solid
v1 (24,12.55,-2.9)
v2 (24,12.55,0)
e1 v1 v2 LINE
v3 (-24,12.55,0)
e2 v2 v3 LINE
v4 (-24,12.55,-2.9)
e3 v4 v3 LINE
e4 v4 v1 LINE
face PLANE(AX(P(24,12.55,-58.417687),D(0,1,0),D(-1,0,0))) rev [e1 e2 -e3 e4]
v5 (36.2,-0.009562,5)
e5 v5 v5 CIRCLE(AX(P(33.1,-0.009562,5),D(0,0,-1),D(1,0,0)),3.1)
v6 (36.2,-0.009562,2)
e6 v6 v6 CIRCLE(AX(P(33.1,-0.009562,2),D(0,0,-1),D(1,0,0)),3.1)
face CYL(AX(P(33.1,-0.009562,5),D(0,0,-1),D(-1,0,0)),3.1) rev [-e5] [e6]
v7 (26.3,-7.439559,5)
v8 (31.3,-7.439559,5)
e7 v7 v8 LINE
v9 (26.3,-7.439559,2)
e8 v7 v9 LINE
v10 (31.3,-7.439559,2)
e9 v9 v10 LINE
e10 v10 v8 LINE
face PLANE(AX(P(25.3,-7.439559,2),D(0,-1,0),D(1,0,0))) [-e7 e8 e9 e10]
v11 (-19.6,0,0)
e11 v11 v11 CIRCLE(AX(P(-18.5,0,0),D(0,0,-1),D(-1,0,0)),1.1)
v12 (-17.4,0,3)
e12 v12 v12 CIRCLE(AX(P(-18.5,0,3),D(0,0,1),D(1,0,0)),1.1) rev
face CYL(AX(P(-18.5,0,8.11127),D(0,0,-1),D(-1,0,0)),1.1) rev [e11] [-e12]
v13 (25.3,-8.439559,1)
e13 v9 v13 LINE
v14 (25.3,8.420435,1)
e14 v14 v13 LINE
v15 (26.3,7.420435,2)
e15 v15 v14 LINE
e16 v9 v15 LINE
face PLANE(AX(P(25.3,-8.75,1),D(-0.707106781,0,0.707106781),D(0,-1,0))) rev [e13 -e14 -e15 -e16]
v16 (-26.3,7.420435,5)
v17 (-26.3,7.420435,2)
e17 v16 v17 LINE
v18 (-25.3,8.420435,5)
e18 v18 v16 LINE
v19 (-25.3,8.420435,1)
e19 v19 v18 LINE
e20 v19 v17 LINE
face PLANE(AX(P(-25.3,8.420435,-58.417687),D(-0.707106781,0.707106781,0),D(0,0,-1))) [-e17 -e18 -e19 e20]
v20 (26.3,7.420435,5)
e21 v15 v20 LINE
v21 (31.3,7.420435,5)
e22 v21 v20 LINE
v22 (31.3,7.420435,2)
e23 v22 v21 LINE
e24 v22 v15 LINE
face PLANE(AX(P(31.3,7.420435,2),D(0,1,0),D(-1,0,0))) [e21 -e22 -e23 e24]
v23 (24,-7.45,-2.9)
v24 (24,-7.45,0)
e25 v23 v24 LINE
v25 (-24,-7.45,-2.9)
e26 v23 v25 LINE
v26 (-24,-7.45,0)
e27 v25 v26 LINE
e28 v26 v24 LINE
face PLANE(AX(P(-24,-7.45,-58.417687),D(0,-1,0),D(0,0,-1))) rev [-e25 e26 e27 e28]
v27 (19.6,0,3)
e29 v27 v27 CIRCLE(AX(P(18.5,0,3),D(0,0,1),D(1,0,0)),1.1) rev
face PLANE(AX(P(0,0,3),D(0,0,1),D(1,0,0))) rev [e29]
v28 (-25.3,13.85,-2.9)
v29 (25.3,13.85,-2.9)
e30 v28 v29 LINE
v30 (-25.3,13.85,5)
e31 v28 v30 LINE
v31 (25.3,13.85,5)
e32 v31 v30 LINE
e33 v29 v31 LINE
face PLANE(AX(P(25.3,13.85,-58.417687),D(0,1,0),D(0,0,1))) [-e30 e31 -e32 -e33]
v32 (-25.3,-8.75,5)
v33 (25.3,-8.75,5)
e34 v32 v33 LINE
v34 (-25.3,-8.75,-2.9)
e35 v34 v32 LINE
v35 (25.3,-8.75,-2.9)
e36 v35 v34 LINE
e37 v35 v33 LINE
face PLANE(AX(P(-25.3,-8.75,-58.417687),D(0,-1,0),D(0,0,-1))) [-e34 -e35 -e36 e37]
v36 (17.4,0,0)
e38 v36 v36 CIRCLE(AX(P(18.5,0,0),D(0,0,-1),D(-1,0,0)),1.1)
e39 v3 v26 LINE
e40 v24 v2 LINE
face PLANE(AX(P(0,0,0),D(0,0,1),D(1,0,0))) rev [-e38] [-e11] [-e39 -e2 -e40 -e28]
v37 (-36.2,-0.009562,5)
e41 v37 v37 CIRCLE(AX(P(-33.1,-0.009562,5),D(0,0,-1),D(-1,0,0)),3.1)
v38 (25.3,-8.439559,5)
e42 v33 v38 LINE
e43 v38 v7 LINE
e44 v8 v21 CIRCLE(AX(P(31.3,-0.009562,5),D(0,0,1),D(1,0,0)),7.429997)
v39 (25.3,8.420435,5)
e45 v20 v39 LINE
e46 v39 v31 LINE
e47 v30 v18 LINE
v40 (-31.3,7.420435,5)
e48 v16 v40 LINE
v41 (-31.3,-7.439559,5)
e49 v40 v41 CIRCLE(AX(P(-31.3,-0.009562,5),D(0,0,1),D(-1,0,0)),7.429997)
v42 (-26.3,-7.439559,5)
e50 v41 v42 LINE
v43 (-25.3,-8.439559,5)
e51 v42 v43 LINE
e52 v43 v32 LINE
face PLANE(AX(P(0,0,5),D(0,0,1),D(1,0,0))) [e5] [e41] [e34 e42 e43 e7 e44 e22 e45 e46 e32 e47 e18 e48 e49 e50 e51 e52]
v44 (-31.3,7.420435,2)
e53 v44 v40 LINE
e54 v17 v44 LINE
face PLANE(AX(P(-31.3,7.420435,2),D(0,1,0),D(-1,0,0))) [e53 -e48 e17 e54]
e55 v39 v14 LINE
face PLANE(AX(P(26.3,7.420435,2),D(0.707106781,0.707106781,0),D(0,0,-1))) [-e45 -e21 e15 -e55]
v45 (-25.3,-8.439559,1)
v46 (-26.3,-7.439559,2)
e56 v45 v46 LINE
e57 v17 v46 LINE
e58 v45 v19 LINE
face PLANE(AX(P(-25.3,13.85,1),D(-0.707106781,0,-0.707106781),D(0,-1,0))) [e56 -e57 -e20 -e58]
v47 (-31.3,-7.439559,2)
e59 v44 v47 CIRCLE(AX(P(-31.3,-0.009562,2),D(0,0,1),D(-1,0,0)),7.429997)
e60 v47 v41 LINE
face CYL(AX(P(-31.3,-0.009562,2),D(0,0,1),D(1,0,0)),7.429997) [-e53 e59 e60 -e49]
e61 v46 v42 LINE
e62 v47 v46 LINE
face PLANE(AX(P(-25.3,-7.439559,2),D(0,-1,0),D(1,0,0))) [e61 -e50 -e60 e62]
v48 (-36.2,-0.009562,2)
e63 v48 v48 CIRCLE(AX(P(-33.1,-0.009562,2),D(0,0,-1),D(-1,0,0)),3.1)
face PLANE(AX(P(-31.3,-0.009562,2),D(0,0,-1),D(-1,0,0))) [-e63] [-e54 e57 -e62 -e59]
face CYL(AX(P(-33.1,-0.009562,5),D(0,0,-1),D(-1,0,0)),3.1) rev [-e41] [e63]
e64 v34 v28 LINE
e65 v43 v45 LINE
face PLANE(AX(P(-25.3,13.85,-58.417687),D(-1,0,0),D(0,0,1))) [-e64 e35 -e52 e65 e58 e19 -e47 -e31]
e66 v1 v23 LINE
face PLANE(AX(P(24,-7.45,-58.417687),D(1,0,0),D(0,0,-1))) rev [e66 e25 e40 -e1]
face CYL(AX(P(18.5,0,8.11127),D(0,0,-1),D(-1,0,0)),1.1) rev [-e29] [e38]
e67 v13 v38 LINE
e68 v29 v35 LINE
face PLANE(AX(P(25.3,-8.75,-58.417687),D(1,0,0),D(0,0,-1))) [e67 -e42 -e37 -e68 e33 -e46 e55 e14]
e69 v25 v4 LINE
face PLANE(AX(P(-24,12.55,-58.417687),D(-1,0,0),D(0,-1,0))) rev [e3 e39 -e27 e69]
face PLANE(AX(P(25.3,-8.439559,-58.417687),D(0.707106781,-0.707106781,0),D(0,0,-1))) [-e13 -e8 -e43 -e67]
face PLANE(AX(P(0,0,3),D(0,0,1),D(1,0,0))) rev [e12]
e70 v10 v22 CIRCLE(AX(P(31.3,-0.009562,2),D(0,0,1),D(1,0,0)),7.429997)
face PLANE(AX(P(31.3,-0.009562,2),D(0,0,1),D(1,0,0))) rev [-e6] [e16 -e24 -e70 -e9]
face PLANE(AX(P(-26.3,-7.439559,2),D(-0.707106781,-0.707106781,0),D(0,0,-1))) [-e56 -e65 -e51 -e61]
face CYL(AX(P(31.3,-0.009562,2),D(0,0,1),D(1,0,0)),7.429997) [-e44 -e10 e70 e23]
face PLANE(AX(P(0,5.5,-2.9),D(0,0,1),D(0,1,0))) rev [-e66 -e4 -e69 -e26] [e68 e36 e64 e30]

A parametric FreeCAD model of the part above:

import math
import FreeCAD as App
import Part
import Sketcher

V = App.Vector
Q = App.Units.Quantity


def edges_at(feature, points):
    """Names of the edges that pass closest to the given points."""
    edges = feature.Shape.Edges
    near = lambda p: min(range(len(edges)), key=lambda i: edges[i].distToShape(Part.Vertex(*p))[0])
    return sorted({f"Edge{near(p) + 1}" for p in points})

doc = App.newDocument("Part")
body = doc.addObject("PartDesign::Body", "Body")

sketch1 = doc.addObject("Sketcher::SketchObject", "Sketch")
body.addObject(sketch1)
sketch1.AttachmentSupport = (doc.XY_Plane, [""])
sketch1.MapMode = "FlatFace"
sketch1.addGeometry(Part.LineSegment(V(24, 12.55, 0), V(-24, 12.55, 0)), False)
sketch1.addGeometry(Part.LineSegment(V(-24, 12.55, 0), V(-24, -7.45, 0)), False)
sketch1.addGeometry(Part.LineSegment(V(-24, -7.45, 0), V(24, -7.45, 0)), False)
sketch1.addGeometry(Part.LineSegment(V(24, -7.45, 0), V(24, 12.55, 0)), False)
sketch1.addConstraint(Sketcher.Constraint("Coincident", 0, 2, 1, 1))
sketch1.addConstraint(Sketcher.Constraint("Coincident", 1, 2, 2, 1))
sketch1.addConstraint(Sketcher.Constraint("Coincident", 2, 2, 3, 1))
sketch1.addConstraint(Sketcher.Constraint("Coincident", 3, 2, 0, 1))
sketch1.addConstraint(Sketcher.Constraint("Horizontal", 0))
sketch1.addConstraint(Sketcher.Constraint("Vertical", 1))
sketch1.addConstraint(Sketcher.Constraint("Horizontal", 2))
sketch1.addConstraint(Sketcher.Constraint("Vertical", 3))
sketch1.addConstraint(Sketcher.Constraint("DistanceX", 0, 2, 0, 1, Q("48 mm")))
sketch1.addConstraint(Sketcher.Constraint("DistanceY", 1, 2, 1, 1, Q("20 mm")))
sketch1.addConstraint(Sketcher.Constraint("DistanceX", 0, 2, -1, 1, Q("24 mm")))
sketch1.addConstraint(Sketcher.Constraint("DistanceY", -1, 1, 0, 2, Q("12.55 mm")))
pad1 = doc.addObject("PartDesign::Pad", "Pad")
body.addObject(pad1)
pad1.Profile = sketch1
pad1.Length = 5

sketch2 = doc.addObject("Sketcher::SketchObject", "Sketch001")
body.addObject(sketch2)
sketch2.AttachmentSupport = (doc.XY_Plane, [""])
sketch2.MapMode = "FlatFace"
sketch2.AttachmentOffset = App.Placement(V(0, 0, 5), App.Rotation())
sketch2.addGeometry(Part.LineSegment(V(-25.3, 13.85, 0), V(-25.3, -8.75, 0)), False)
sketch2.addGeometry(Part.LineSegment(V(-25.3, -8.75, 0), V(25.3, -8.75, 0)), False)
sketch2.addGeometry(Part.LineSegment(V(25.3, -8.75, 0), V(25.3, 13.85, 0)), False)
sketch2.addGeometry(Part.LineSegment(V(25.3, 13.85, 0), V(-25.3, 13.85, 0)), False)
sketch2.addGeometry(Part.LineSegment(V(24, -7.45, 0), V(-24, -7.45, 0)), False)
sketch2.addGeometry(Part.LineSegment(V(-24, -7.45, 0), V(-24, 12.55, 0)), False)
sketch2.addGeometry(Part.LineSegment(V(-24, 12.55, 0), V(24, 12.55, 0)), False)
sketch2.addGeometry(Part.LineSegment(V(24, 12.55, 0), V(24, -7.45, 0)), False)
sketch2.addConstraint(Sketcher.Constraint("Coincident", 0, 2, 1, 1))
sketch2.addConstraint(Sketcher.Constraint("Coincident", 1, 2, 2, 1))
sketch2.addConstraint(Sketcher.Constraint("Coincident", 2, 2, 3, 1))
sketch2.addConstraint(Sketcher.Constraint("Coincident", 3, 2, 0, 1))
sketch2.addConstraint(Sketcher.Constraint("Coincident", 4, 2, 5, 1))
sketch2.addConstraint(Sketcher.Constraint("Coincident", 5, 2, 6, 1))
sketch2.addConstraint(Sketcher.Constraint("Coincident", 6, 2, 7, 1))
sketch2.addConstraint(Sketcher.Constraint("Coincident", 7, 2, 4, 1))
sketch2.addConstraint(Sketcher.Constraint("Vertical", 0))
sketch2.addConstraint(Sketcher.Constraint("Horizontal", 1))
sketch2.addConstraint(Sketcher.Constraint("Vertical", 2))
sketch2.addConstraint(Sketcher.Constraint("Horizontal", 3))
sketch2.addConstraint(Sketcher.Constraint("Horizontal", 4))
sketch2.addConstraint(Sketcher.Constraint("Vertical", 5))
sketch2.addConstraint(Sketcher.Constraint("Horizontal", 6))
sketch2.addConstraint(Sketcher.Constraint("Vertical", 7))
sketch2.addConstraint(Sketcher.Constraint("DistanceX", 4, 2, 4, 1, Q("48 mm")))
sketch2.addConstraint(Sketcher.Constraint("DistanceY", 5, 1, 5, 2, Q("20 mm")))
sketch2.addConstraint(Sketcher.Constraint("DistanceX", 1, 1, 1, 2, Q("50.6 mm")))
sketch2.addConstraint(Sketcher.Constraint("DistanceY", 0, 2, 0, 1, Q("22.6 mm")))
sketch2.addConstraint(Sketcher.Constraint("DistanceX", 4, 2, -1, 1, Q("24 mm")))
sketch2.addConstraint(Sketcher.Constraint("DistanceX", 0, 2, -1, 1, Q("25.3 mm")))
sketch2.addConstraint(Sketcher.Constraint("DistanceY", 0, 2, 4, 2, Q("1.3 mm")))
sketch2.addConstraint(Sketcher.Constraint("DistanceY", 0, 2, -1, 1, Q("8.75 mm")))
pad2 = doc.addObject("PartDesign::Pad", "Pad001")
body.addObject(pad2)
pad2.Profile = sketch2
pad2.Length = 7.9
pad2.Reversed = True

sketch3 = doc.addObject("Sketcher::SketchObject", "Sketch002")
body.addObject(sketch3)
sketch3.AttachmentSupport = (doc.XY_Plane, [""])
sketch3.MapMode = "FlatFace"
sketch3.addGeometry(Part.Circle(V(18.5, 0, 0), V(0, 0, 1), 1.1), False)
sketch3.addGeometry(Part.Circle(V(-18.5, 0, 0), V(0, 0, 1), 1.1), False)
sketch3.addConstraint(Sketcher.Constraint("Equal", 0, 1))
sketch3.addConstraint(Sketcher.Constraint("Symmetric", 0, 3, 1, 3, -1, 1))
sketch3.addConstraint(Sketcher.Constraint("PointOnObject", 0, 3, -1))
sketch3.addConstraint(Sketcher.Constraint("Diameter", 0, Q("2.2 mm")))
sketch3.addConstraint(Sketcher.Constraint("DistanceX", 1, 3, 0, 3, Q("37 mm")))
pocket1 = doc.addObject("PartDesign::Pocket", "Pocket")
body.addObject(pocket1)
pocket1.Profile = sketch3
pocket1.Length = 3
pocket1.Reversed = True

sketch4 = doc.addObject("Sketcher::SketchObject", "Sketch003")
body.addObject(sketch4)
sketch4.AttachmentSupport = (doc.XY_Plane, [""])
sketch4.MapMode = "FlatFace"
sketch4.AttachmentOffset = App.Placement(V(0, 0, 5), App.Rotation())
sketch4.addGeometry(Part.LineSegment(V(25.3, -7.439559, 0), V(31.3, -7.439559, 0)), False)
sketch4.addGeometry(Part.ArcOfCircle(Part.Circle(V(31.3, -0.009562, 0), V(0, 0, 1), 7.429997), math.radians(-90), math.radians(90)), False)
sketch4.addGeometry(Part.LineSegment(V(31.3, 7.420435, 0), V(25.3, 7.420435, 0)), False)
sketch4.addGeometry(Part.LineSegment(V(25.3, 7.420435, 0), V(25.3, -7.439559, 0)), False)
sketch4.addGeometry(Part.LineSegment(V(-31.3, -7.439559, 0), V(-25.3, -7.439559, 0)), False)
sketch4.addGeometry(Part.LineSegment(V(-25.3, -7.439559, 0), V(-25.3, 7.420435, 0)), False)
sketch4.addGeometry(Part.LineSegment(V(-25.3, 7.420435, 0), V(-31.3, 7.420435, 0)), False)
sketch4.addGeometry(Part.ArcOfCircle(Part.Circle(V(-31.3, -0.009562, 0), V(0, 0, 1), 7.429997), math.radians(90), math.radians(270)), False)
sketch4.addConstraint(Sketcher.Constraint("Tangent", 0, 2, 1, 1))
sketch4.addConstraint(Sketcher.Constraint("Tangent", 1, 2, 2, 1))
sketch4.addConstraint(Sketcher.Constraint("Coincident", 2, 2, 3, 1))
sketch4.addConstraint(Sketcher.Constraint("Coincident", 3, 2, 0, 1))
sketch4.addConstraint(Sketcher.Constraint("Coincident", 4, 2, 5, 1))
sketch4.addConstraint(Sketcher.Constraint("Coincident", 5, 2, 6, 1))
sketch4.addConstraint(Sketcher.Constraint("Tangent", 6, 2, 7, 1))
sketch4.addConstraint(Sketcher.Constraint("Tangent", 7, 2, 4, 1))
sketch4.addConstraint(Sketcher.Constraint("Horizontal", 0))
sketch4.addConstraint(Sketcher.Constraint("Horizontal", 2))
sketch4.addConstraint(Sketcher.Constraint("Vertical", 3))
sketch4.addConstraint(Sketcher.Constraint("Horizontal", 4))
sketch4.addConstraint(Sketcher.Constraint("Vertical", 5))
sketch4.addConstraint(Sketcher.Constraint("Horizontal", 6))
sketch4.addConstraint(Sketcher.Constraint("Equal", 1, 7))
sketch4.addConstraint(Sketcher.Constraint("Symmetric", 1, 3, 7, 3, -2))
sketch4.addConstraint(Sketcher.Constraint("Equal", 2, 4))
sketch4.addConstraint(Sketcher.Constraint("DistanceX", 0, 1, 0, 2, Q("6 mm")))
sketch4.addConstraint(Sketcher.Constraint("DistanceX", -1, 1, 1, 3, Q("31.3 mm")))
sketch4.addConstraint(Sketcher.Constraint("Radius", 1, Q("7.429997 mm")))
sketch4.addConstraint(Sketcher.Constraint("DistanceY", 0, 2, -1, 1, Q("7.439559 mm")))
pad3 = doc.addObject("PartDesign::Pad", "Pad002")
body.addObject(pad3)
pad3.Profile = sketch4
pad3.Length = 3
pad3.Reversed = True
doc.recompute()

chamfer = doc.addObject("PartDesign::Chamfer", "Chamfer")
body.addObject(chamfer)
chamfer.Base = (pad3, edges_at(pad3, [
    (25.3, -0.01, 2),
    (25.3, -7.44, 3.5),
    (25.3, 7.42, 3.5),
    (-25.3, -0.01, 2),
    (-25.3, 7.42, 3.5),
    (-25.3, -7.44, 3.5),
]))
chamfer.Size = 1

sketch5 = doc.addObject("Sketcher::SketchObject", "Sketch004")
body.addObject(sketch5)
sketch5.AttachmentSupport = (doc.XY_Plane, [""])
sketch5.MapMode = "FlatFace"
sketch5.AttachmentOffset = App.Placement(V(0, 0, 2), App.Rotation())
sketch5.addGeometry(Part.Circle(V(33.1, -0.009562, 0), V(0, 0, 1), 3.1), False)
sketch5.addGeometry(Part.Circle(V(-33.1, -0.009562, 0), V(0, 0, 1), 3.1), False)
sketch5.addConstraint(Sketcher.Constraint("Equal", 0, 1))
sketch5.addConstraint(Sketcher.Constraint("Symmetric", 0, 3, 1, 3, -2))
sketch5.addConstraint(Sketcher.Constraint("Diameter", 0, Q("6.2 mm")))
sketch5.addConstraint(Sketcher.Constraint("DistanceX", -1, 1, 0, 3, Q("33.1 mm")))
sketch5.addConstraint(Sketcher.Constraint("DistanceY", 0, 3, -1, 1, Q("0.009562 mm")))
pocket2 = doc.addObject("PartDesign::Pocket", "Pocket001")
body.addObject(pocket2)
pocket2.Profile = sketch5
pocket2.Length = 3
pocket2.Reversed = True

doc.recompute()
